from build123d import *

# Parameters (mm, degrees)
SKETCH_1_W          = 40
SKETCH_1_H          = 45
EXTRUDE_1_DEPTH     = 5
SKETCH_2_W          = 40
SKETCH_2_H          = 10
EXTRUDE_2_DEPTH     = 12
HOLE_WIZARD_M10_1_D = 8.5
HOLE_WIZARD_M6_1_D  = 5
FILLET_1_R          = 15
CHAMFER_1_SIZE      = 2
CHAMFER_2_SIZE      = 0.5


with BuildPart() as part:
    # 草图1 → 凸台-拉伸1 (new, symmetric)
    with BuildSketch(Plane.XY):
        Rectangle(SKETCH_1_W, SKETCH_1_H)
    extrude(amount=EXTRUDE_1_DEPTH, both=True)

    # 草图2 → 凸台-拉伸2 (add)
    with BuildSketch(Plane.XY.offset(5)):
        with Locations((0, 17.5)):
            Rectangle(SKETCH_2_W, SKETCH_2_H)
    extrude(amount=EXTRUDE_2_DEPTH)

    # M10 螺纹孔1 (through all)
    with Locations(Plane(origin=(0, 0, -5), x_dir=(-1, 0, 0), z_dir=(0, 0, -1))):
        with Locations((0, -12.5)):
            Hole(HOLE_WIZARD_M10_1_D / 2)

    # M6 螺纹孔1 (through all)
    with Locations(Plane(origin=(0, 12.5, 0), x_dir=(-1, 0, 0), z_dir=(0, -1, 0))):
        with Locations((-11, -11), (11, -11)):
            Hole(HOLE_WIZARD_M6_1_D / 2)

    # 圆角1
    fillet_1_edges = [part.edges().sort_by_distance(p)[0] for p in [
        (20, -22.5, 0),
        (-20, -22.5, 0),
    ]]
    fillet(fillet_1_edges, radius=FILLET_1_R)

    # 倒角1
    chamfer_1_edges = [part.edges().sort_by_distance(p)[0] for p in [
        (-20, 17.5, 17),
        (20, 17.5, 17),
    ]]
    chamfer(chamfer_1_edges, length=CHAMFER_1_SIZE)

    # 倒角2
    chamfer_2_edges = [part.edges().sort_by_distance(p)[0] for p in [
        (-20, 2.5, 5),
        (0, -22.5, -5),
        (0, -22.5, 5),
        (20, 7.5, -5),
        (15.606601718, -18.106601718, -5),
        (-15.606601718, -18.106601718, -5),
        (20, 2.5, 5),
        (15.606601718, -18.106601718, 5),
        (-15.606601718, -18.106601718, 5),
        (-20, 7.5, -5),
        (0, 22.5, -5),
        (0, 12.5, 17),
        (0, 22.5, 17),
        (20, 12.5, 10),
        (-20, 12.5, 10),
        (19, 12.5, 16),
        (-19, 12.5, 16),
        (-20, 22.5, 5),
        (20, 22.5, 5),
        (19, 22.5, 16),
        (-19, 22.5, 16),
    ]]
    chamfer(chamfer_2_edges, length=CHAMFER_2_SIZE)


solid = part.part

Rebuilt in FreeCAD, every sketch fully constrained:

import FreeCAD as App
import Part
import Sketcher


def edges_at(feature, points):
    """Names of the edges that pass closest to the given points."""
    edges = feature.Shape.Edges
    near = lambda p: min(range(len(edges)), key=lambda i: edges[i].distToShape(Part.Vertex(*p))[0])
    return sorted({f"Edge{near(p) + 1}" for p in points})

doc = App.newDocument("Part")
body = doc.addObject("PartDesign::Body", "Body")

sketch1 = body.newObject("Sketcher::SketchObject", "Sketch")
sketch1.AttachmentSupport = (doc.getObject("XY_Plane"), [""])
sketch1.MapMode = "FlatFace"
sketch1.addGeometry(Part.LineSegment(App.Vector(-20, 22, 0), App.Vector(-20, -22, 0)), False)
sketch1.addGeometry(Part.LineSegment(App.Vector(-20, -22, 0), App.Vector(20, -22, 0)), False)
sketch1.addGeometry(Part.LineSegment(App.Vector(20, -22, 0), App.Vector(20, 22, 0)), False)
sketch1.addGeometry(Part.LineSegment(App.Vector(20, 22, 0), App.Vector(-20, 22, 0)), False)
sketch1.addConstraint(Sketcher.Constraint("Coincident", 0, 2, 1, 1))
sketch1.addConstraint(Sketcher.Constraint("Coincident", 1, 2, 2, 1))
sketch1.addConstraint(Sketcher.Constraint("Coincident", 2, 2, 3, 1))
sketch1.addConstraint(Sketcher.Constraint("Coincident", 3, 2, 0, 1))
sketch1.addConstraint(Sketcher.Constraint("Vertical", 0))
sketch1.addConstraint(Sketcher.Constraint("Horizontal", 1))
sketch1.addConstraint(Sketcher.Constraint("Vertical", 2))
sketch1.addConstraint(Sketcher.Constraint("Horizontal", 3))
sketch1.addConstraint(Sketcher.Constraint("Symmetric", 0, 2, 2, 2, -1, 1))
sketch1.addConstraint(Sketcher.Constraint("DistanceX", 1, 1, 1, 2, 40.0))
sketch1.addConstraint(Sketcher.Constraint("DistanceY", 0, 2, 0, 1, 45.0))
pad1 = body.newObject("PartDesign::Pad", "Pad")
pad1.Profile = sketch1
pad1.Length = 10
pad1.Midplane = True

sketch2 = body.newObject("Sketcher::SketchObject", "Sketch001")
sketch2.AttachmentSupport = (doc.getObject("XY_Plane"), [""])
sketch2.MapMode = "FlatFace"
sketch2.AttachmentOffset = App.Placement(App.Vector(0, 0, 5), App.Rotation())
sketch2.addGeometry(Part.LineSegment(App.Vector(-20, 22, 0), App.Vector(-20, 12, 0)), False)
sketch2.addGeometry(Part.LineSegment(App.Vector(-20, 12, 0), App.Vector(20, 12, 0)), False)
sketch2.addGeometry(Part.LineSegment(App.Vector(20, 12, 0), App.Vector(20, 22, 0)), False)
sketch2.addGeometry(Part.LineSegment(App.Vector(20, 22, 0), App.Vector(-20, 22, 0)), False)
sketch2.addConstraint(Sketcher.Constraint("Coincident", 0, 2, 1, 1))
sketch2.addConstraint(Sketcher.Constraint("Coincident", 1, 2, 2, 1))
sketch2.addConstraint(Sketcher.Constraint("Coincident", 2, 2, 3, 1))
sketch2.addConstraint(Sketcher.Constraint("Coincident", 3, 2, 0, 1))
sketch2.addConstraint(Sketcher.Constraint("Vertical", 0))
sketch2.addConstraint(Sketcher.Constraint("Horizontal", 1))
sketch2.addConstraint(Sketcher.Constraint("Vertical", 2))
sketch2.addConstraint(Sketcher.Constraint("Horizontal", 3))
sketch2.addConstraint(Sketcher.Constraint("DistanceX", 1, 1, 1, 2, 40.0))
sketch2.addConstraint(Sketcher.Constraint("DistanceY", 0, 2, 0, 1, 10.0))
sketch2.addConstraint(Sketcher.Constraint("DistanceX", 0, 2, -1, 1, 20.0))
sketch2.addConstraint(Sketcher.Constraint("DistanceY", -1, 1, 0, 2, 12.5))
pad2 = body.newObject("PartDesign::Pad", "Pad001")
pad2.Profile = sketch2
pad2.Length = 12

sketch3 = body.newObject("Sketcher::SketchObject", "Sketch002")
sketch3.AttachmentSupport = (doc.getObject("XY_Plane"), [""])
sketch3.MapMode = "FlatFace"
sketch3.AttachmentOffset = App.Placement(App.Vector(0, 0, -5), App.Rotation())
sketch3.addGeometry(Part.Circle(App.Vector(0, -12.5, 0), App.Vector(0, 0, 1), 4.2), False)
sketch3.addConstraint(Sketcher.Constraint("PointOnObject", 0, 3, -2))
sketch3.addConstraint(Sketcher.Constraint("Diameter", 0, 8.5))
sketch3.addConstraint(Sketcher.Constraint("DistanceY", 0, 3, -1, 1, 12.5))
doc.recompute()
hole = body.newObject("PartDesign::Hole", "Hole")
hole.Profile = sketch3
hole.ThreadType = "None"
hole.Diameter = 8.5
hole.DepthType = "ThroughAll"
hole.Reversed = True

sketch4 = body.newObject("Sketcher::SketchObject", "Sketch003")
sketch4.AttachmentSupport = (doc.getObject("XZ_Plane"), [""])
sketch4.MapMode = "FlatFace"
sketch4.AttachmentOffset = App.Placement(App.Vector(0, 0, -12.5), App.Rotation())
sketch4.addGeometry(Part.Circle(App.Vector(11, 11, 0), App.Vector(0, 0, 1), 2.5), False)
sketch4.addGeometry(Part.Circle(App.Vector(-11, 11, 0), App.Vector(0, 0, 1), 2.5), False)
sketch4.addConstraint(Sketcher.Constraint("Equal", 0, 1))
sketch4.addConstraint(Sketcher.Constraint("Symmetric", 0, 3, 1, 3, -2))
sketch4.addConstraint(Sketcher.Constraint("Diameter", 0, 5.0))
sketch4.addConstraint(Sketcher.Constraint("DistanceX", -1, 1, 0, 3, 11.0))
sketch4.addConstraint(Sketcher.Constraint("DistanceY", -1, 1, 0, 3, 11.0))
doc.recompute()
hole2 = body.newObject("PartDesign::Hole", "Hole001")
hole2.Profile = sketch4
hole2.ThreadType = "None"
hole2.Diameter = 5
hole2.DepthType = "ThroughAll"
doc.recompute()

fillet = body.newObject("PartDesign::Fillet", "Fillet")
fillet.Base = (hole2, edges_at(hole2, [(20, -22.5, 0), (-20, -22.5, 0)]))
fillet.Radius = 15
doc.recompute()

chamfer = body.newObject("PartDesign::Chamfer", "Chamfer")
chamfer.Base = (fillet, edges_at(fillet, [(-20, 17.5, 17), (20, 17.5, 17)]))
chamfer.Size = 2
doc.recompute()

chamfer2 = body.newObject("PartDesign::Chamfer", "Chamfer001")
chamfer2.Base = (chamfer, edges_at(chamfer, [
    (-20, 2.5, 5),
    (0, -22.5, -5),
    (0, -22.5, 5),
    (20, 7.5, -5),
    (15.607, -18.107, -5),
    (-15.607, -18.107, -5),
    (20, 2.5, 5),
    (15.607, -18.107, 5),
    (-15.607, -18.107, 5),
    (-20, 7.5, -5),
    (0, 22.5, -5),
    (0, 12.5, 17),
    (0, 22.5, 17),
    (20, 12.5, 10),
    (-20, 12.5, 10),
    (19, 12.5, 16),
    (-19, 12.5, 16),
    (-20, 22.5, 5),
    (20, 22.5, 5),
    (19, 22.5, 16),
    (-19, 22.5, 16),
]))
chamfer2.Size = 0.5

doc.recompute()
